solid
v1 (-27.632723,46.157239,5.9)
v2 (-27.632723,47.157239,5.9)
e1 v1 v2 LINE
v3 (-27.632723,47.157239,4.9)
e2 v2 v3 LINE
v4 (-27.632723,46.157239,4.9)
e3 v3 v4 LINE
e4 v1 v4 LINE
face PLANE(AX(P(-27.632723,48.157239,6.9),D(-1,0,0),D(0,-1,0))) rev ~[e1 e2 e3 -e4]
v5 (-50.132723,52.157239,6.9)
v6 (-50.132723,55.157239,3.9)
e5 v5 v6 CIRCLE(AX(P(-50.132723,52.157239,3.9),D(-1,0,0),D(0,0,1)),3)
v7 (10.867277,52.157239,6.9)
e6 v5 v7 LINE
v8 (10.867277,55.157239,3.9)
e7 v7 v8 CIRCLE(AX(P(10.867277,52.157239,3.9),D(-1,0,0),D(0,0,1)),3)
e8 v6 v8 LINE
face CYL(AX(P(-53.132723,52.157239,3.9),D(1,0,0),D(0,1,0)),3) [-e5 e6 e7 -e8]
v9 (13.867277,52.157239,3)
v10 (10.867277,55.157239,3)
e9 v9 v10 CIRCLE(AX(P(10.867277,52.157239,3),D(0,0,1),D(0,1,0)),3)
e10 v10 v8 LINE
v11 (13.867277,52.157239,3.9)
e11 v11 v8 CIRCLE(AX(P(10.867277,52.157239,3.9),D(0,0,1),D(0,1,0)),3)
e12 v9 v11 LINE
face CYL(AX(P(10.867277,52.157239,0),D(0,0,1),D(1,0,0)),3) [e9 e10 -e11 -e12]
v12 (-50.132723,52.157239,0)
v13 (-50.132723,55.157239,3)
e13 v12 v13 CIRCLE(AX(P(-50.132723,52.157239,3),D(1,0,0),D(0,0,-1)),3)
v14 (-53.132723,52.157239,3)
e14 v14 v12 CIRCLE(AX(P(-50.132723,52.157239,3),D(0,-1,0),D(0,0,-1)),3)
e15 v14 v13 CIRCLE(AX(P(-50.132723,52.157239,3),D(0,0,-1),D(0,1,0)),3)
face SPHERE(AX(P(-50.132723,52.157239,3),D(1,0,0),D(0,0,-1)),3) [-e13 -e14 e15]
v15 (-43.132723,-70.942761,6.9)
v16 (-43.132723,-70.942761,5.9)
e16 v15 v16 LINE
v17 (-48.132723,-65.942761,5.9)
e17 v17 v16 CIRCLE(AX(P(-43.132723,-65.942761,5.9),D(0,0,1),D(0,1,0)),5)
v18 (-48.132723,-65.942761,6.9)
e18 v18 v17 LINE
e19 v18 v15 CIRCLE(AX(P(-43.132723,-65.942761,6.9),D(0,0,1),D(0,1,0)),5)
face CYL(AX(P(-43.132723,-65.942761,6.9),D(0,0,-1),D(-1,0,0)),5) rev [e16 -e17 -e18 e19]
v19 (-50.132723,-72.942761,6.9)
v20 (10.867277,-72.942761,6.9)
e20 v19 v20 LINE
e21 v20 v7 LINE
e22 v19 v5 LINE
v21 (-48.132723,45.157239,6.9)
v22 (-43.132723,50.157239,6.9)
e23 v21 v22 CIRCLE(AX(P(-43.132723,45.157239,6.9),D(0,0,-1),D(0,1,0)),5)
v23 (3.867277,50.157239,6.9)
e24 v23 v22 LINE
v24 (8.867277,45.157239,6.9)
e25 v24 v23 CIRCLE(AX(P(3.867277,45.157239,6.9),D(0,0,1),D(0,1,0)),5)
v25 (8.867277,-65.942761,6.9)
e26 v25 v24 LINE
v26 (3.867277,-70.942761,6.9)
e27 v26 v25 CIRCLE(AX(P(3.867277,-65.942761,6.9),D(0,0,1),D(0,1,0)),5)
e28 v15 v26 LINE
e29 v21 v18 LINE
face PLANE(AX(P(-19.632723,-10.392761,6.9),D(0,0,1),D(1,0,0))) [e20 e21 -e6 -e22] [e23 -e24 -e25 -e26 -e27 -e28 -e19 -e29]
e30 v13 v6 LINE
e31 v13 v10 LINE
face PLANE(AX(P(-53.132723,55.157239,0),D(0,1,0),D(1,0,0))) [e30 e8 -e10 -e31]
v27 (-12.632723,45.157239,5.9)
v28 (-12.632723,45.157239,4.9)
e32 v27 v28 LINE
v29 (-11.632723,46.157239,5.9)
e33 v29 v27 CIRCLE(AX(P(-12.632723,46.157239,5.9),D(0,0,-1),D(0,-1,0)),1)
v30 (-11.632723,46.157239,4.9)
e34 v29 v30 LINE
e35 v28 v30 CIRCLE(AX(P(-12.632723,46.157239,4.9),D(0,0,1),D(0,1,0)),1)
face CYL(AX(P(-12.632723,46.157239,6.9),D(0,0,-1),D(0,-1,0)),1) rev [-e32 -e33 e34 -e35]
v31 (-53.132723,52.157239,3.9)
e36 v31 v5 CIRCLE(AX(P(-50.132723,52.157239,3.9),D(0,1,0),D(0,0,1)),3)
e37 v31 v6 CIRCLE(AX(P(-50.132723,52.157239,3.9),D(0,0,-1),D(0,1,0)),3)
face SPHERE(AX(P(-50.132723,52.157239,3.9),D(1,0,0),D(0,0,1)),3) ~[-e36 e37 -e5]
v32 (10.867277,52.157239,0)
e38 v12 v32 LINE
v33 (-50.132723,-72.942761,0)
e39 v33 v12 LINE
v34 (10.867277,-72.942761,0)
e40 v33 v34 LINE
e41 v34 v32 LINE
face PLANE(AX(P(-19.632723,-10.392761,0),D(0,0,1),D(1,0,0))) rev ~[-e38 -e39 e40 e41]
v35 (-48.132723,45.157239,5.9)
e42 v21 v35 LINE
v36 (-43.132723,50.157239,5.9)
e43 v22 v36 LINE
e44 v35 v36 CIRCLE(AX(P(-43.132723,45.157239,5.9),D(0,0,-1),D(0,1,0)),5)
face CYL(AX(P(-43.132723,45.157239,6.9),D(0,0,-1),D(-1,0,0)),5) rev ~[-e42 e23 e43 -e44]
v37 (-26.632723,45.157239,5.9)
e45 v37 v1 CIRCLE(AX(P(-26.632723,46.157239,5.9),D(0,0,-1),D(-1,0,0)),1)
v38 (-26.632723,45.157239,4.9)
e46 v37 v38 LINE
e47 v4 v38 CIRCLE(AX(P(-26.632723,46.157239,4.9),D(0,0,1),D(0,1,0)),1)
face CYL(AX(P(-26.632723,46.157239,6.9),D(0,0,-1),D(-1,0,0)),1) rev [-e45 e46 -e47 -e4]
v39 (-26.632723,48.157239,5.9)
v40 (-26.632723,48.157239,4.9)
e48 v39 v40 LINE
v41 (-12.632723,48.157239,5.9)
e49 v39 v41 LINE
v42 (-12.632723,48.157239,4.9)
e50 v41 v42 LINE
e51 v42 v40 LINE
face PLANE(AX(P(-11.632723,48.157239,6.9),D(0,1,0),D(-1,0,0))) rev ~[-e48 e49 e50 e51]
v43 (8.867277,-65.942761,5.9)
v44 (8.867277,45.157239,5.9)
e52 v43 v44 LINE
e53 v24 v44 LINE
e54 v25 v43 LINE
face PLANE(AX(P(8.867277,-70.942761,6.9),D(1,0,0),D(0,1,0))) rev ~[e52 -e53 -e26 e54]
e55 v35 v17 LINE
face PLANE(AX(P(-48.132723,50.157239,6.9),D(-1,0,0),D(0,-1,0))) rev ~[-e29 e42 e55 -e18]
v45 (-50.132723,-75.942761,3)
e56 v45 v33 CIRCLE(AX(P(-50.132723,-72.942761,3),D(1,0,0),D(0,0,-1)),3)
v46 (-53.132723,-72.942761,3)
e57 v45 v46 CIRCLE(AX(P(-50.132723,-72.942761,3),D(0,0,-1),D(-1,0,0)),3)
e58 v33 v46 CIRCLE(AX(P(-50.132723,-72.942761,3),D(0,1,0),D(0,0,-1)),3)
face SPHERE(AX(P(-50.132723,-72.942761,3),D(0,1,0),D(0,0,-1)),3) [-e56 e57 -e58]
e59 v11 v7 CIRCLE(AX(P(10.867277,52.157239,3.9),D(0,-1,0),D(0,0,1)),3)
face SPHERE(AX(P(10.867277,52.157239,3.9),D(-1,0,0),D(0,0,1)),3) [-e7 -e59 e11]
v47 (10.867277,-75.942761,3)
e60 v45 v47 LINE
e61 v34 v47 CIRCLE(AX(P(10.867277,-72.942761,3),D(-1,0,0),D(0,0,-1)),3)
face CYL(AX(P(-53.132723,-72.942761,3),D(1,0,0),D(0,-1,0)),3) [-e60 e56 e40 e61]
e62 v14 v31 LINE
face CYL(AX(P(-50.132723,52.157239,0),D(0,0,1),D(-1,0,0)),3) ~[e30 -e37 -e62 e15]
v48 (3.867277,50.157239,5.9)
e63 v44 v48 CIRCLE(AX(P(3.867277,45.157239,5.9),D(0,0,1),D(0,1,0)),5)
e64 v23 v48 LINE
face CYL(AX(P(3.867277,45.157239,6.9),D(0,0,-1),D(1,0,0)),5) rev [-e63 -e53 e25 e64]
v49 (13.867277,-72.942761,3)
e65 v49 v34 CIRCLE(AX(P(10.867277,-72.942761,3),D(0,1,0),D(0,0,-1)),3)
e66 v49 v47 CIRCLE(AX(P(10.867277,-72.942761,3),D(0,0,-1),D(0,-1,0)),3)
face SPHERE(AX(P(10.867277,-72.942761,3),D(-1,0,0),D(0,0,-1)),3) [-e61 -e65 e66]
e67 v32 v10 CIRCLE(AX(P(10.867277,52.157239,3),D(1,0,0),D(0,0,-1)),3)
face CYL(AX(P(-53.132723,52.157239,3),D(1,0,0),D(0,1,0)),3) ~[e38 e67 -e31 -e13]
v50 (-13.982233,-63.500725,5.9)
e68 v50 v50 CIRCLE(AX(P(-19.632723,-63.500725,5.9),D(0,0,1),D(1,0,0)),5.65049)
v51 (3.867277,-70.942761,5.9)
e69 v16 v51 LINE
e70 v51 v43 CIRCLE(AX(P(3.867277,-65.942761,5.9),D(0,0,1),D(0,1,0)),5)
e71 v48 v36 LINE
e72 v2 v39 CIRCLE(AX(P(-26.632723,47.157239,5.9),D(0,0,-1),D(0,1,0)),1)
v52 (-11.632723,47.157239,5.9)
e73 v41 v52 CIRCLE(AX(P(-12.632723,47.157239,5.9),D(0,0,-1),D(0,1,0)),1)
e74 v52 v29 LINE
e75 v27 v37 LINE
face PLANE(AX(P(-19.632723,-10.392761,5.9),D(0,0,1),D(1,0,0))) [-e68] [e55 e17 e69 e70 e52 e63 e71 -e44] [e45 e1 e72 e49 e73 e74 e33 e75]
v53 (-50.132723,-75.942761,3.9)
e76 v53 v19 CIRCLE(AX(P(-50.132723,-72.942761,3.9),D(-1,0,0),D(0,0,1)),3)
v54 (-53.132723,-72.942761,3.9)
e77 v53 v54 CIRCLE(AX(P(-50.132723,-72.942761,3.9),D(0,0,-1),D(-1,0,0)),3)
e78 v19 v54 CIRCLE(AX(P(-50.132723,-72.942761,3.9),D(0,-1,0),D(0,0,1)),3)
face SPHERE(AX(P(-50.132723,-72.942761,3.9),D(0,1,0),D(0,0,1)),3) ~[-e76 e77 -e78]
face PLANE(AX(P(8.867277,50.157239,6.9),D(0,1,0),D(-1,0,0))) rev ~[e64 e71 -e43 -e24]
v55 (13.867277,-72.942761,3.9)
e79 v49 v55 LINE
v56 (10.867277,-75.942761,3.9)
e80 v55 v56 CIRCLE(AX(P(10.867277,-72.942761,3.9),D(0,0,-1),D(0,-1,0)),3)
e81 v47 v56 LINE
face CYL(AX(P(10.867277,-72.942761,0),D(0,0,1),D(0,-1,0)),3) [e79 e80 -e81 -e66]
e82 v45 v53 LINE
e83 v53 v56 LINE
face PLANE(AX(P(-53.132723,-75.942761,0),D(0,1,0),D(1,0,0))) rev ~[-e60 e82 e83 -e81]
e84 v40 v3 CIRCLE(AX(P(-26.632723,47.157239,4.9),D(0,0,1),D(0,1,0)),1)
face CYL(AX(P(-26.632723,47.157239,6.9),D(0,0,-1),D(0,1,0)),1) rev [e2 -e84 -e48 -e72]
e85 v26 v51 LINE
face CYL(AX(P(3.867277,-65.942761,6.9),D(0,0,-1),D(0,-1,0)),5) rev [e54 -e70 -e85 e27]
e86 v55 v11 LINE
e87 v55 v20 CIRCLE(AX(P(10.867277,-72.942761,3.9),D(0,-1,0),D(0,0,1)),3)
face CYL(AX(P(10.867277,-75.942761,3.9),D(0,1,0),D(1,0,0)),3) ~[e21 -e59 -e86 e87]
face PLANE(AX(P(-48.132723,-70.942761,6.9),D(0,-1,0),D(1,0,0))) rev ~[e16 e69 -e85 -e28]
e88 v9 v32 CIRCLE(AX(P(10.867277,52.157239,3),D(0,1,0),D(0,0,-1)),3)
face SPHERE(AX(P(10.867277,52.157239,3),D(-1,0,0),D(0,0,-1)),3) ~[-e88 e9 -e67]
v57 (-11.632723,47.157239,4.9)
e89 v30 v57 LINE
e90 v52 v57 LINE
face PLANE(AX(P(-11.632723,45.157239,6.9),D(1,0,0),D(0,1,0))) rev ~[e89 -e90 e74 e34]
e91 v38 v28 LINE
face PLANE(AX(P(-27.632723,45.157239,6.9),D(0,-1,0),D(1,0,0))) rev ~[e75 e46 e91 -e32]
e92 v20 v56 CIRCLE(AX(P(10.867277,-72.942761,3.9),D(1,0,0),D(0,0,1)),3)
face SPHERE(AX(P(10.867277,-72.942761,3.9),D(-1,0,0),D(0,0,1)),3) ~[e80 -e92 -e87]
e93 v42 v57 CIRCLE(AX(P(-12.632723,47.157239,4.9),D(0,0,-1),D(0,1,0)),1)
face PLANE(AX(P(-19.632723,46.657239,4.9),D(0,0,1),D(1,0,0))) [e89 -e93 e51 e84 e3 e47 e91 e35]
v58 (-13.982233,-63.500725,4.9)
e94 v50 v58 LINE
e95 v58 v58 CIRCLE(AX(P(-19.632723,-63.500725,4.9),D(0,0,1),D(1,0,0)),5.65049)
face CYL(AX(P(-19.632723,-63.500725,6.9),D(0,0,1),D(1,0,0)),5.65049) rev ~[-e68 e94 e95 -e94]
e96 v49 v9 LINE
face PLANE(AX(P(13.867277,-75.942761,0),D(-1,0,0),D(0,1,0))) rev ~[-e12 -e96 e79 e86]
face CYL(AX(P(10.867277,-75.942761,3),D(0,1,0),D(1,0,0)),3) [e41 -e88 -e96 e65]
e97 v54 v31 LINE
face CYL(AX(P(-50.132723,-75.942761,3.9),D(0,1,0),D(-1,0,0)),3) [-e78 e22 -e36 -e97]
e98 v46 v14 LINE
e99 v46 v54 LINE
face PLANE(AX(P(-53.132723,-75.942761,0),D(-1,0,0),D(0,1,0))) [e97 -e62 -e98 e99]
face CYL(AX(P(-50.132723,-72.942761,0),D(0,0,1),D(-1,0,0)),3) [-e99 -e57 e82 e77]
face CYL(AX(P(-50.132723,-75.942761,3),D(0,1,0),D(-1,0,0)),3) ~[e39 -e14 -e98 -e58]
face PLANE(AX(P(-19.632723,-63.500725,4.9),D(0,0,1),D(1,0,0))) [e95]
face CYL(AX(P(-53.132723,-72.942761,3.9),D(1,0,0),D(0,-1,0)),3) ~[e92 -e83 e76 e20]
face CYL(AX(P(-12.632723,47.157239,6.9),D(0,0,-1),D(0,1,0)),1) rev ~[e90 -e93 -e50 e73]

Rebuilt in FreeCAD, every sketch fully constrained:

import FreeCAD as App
import Part
import Sketcher

V = App.Vector
Q = App.Units.Quantity


def edges_at(feature, points):
    """Names of the edges that pass closest to the given points."""
    edges = feature.Shape.Edges
    near = lambda p: min(range(len(edges)), key=lambda i: edges[i].distToShape(Part.Vertex(*p))[0])
    return sorted({f"Edge{near(p) + 1}" for p in points})


def add_polygon(sketch, points):
    """Adds a closed chain of lines whose ends are joined by coincident constraints."""
    first, n = sketch.GeometryCount, len(points)
    for a, b in zip(points, points[1:] + points[:1]):
        sketch.addGeometry(Part.LineSegment(App.Vector(*a, 0), App.Vector(*b, 0)), False)
    for i in range(n):
        sketch.addConstraint(Sketcher.Constraint("Coincident", first + i, 2, first + (i + 1) % n, 1))

doc = App.newDocument("Part")
body = doc.addObject("PartDesign::Body", "Body")

# Sketch on XY plane
sketch1 = body.newObject("Sketcher::SketchObject", "Sketch")
sketch1.AttachmentSupport = (doc.getObject("XY_Plane"), [""])
sketch1.MapMode = "FlatFace"
add_polygon(sketch1, [(-53, 55), (-53, -76), (14, -76), (14, 55)])  # lines 0-3
sketch1.addConstraint(Sketcher.Constraint("Vertical", 0))
sketch1.addConstraint(Sketcher.Constraint("Horizontal", 1))
sketch1.addConstraint(Sketcher.Constraint("Vertical", 2))
sketch1.addConstraint(Sketcher.Constraint("Horizontal", 3))
sketch1.addConstraint(Sketcher.Constraint("DistanceX", 1, 1, 1, 2, Q("67 mm")))
sketch1.addConstraint(Sketcher.Constraint("DistanceY", 0, 2, 0, 1, Q("131.1 mm")))
sketch1.addConstraint(Sketcher.Constraint("DistanceY", 0, 2, -1, 1, Q("75.942761 mm")))
sketch1.addConstraint(Sketcher.Constraint("DistanceX", 0, 2, -1, 1, Q("53.132723 mm")))
pad1 = body.newObject("PartDesign::Pad", "Pad")
pad1.Profile = sketch1
pad1.Length = 6.9
doc.recompute()

fillet = body.newObject("PartDesign::Fillet", "Fillet")
fillet.Base = (pad1, ["Edge1"])
fillet.UseAllEdges = True
fillet.Radius = 3

# Sketch on XY plane
sketch2 = body.newObject("Sketcher::SketchObject", "Sketch001")
sketch2.AttachmentSupport = (doc.getObject("XY_Plane"), [""])
sketch2.MapMode = "FlatFace"
sketch2.AttachmentOffset = App.Placement(V(0, 0, 6.9), App.Rotation())
sketch2.addGeometry(Part.Circle(V(-19.6, -63.5, 0), V(0, 0, 1), 5.7), False)  # 0
add_polygon(sketch2, [(-11.6, 48.2), (-27.6, 48.2), (-27.6, 45.2), (-11.6, 45.2)])  # lines 1-4
sketch2.addConstraint(Sketcher.Constraint("Horizontal", 1))
sketch2.addConstraint(Sketcher.Constraint("Vertical", 2))
sketch2.addConstraint(Sketcher.Constraint("Horizontal", 3))
sketch2.addConstraint(Sketcher.Constraint("Vertical", 4))
sketch2.addConstraint(Sketcher.Constraint("DistanceX", 1, 2, 1, 1, Q("16 mm")))
sketch2.addConstraint(Sketcher.Constraint("DistanceY", 2, 2, 2, 1, Q("3 mm")))
sketch2.addConstraint(Sketcher.Constraint("DistanceX", 1, 2, 0, 3, Q("8 mm")))
sketch2.addConstraint(Sketcher.Constraint("Diameter", 0, Q("11.30098 mm")))
sketch2.addConstraint(Sketcher.Constraint("DistanceY", -1, 1, 1, 2, Q("48.157239 mm")))
sketch2.addConstraint(Sketcher.Constraint("DistanceX", 0, 3, -1, 1, Q("19.632723 mm")))
sketch2.addConstraint(Sketcher.Constraint("DistanceY", 0, 3, -1, 1, Q("63.500725 mm")))
pocket1 = body.newObject("PartDesign::Pocket", "Pocket")
pocket1.Profile = sketch2
pocket1.Length = 2
doc.recompute()

fillet2 = body.newObject("PartDesign::Fillet", "Fillet001")
fillet2.Base = (pocket1, edges_at(pocket1, [
    (-27.633, 45.157, 5.9),
    (-27.633, 48.157, 5.9),
    (-11.633, 48.157, 5.9),
    (-11.633, 45.157, 5.9),
]))
fillet2.Radius = 1

# Sketch on XY plane
sketch3 = body.newObject("Sketcher::SketchObject", "Sketch002")
sketch3.AttachmentSupport = (doc.getObject("XY_Plane"), [""])
sketch3.MapMode = "FlatFace"
sketch3.AttachmentOffset = App.Placement(V(0, 0, 6.9), App.Rotation())
add_polygon(sketch3, [(-48, 50), (-48, -71), (9, -71), (9, 50)])  # lines 0-3
sketch3.addConstraint(Sketcher.Constraint("Vertical", 0))
sketch3.addConstraint(Sketcher.Constraint("Horizontal", 1))
sketch3.addConstraint(Sketcher.Constraint("Vertical", 2))
sketch3.addConstraint(Sketcher.Constraint("Horizontal", 3))
sketch3.addConstraint(Sketcher.Constraint("DistanceX", 1, 1, 1, 2, Q("57 mm")))
sketch3.addConstraint(Sketcher.Constraint("DistanceY", 0, 2, 0, 1, Q("121.1 mm")))
sketch3.addConstraint(Sketcher.Constraint("DistanceY", 0, 2, -1, 1, Q("70.942761 mm")))
sketch3.addConstraint(Sketcher.Constraint("DistanceX", 0, 2, -1, 1, Q("48.132723 mm")))
pocket2 = body.newObject("PartDesign::Pocket", "Pocket001")
pocket2.Profile = sketch3
pocket2.Length = 1
doc.recompute()

fillet3 = body.newObject("PartDesign::Fillet", "Fillet002")
fillet3.Base = (pocket2, edges_at(pocket2, [
    (-48.133, 50.157, 6.4),
    (8.867, 50.157, 6.4),
    (8.867, -70.943, 6.4),
    (-48.133, -70.943, 6.4),
]))
fillet3.Radius = 5

doc.recompute()
